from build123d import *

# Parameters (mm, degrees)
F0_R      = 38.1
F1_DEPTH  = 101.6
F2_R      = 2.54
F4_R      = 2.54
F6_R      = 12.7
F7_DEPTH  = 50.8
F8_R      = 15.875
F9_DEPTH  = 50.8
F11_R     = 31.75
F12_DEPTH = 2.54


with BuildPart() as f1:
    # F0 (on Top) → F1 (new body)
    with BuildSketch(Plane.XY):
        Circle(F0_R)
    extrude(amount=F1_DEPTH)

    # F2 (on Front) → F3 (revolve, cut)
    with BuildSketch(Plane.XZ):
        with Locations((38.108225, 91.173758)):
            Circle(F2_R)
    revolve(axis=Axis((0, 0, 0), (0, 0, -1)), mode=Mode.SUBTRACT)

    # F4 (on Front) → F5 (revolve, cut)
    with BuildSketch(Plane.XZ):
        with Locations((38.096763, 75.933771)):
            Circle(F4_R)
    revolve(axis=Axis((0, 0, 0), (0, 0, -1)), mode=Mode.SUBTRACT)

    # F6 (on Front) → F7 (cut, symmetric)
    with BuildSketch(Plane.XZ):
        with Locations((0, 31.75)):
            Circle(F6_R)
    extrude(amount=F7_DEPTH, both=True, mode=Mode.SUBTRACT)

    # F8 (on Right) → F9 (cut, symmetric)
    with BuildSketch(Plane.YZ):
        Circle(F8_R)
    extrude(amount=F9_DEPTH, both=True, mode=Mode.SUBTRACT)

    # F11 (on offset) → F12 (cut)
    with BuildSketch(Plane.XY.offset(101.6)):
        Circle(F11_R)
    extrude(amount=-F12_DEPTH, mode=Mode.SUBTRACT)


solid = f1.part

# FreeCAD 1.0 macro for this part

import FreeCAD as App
import Part
import Sketcher
Q = App.Units.Quantity

doc = App.newDocument("Part")
body = doc.addObject("PartDesign::Body", "Body")

# Sketch on XY plane
sketch1 = body.newObject("Sketcher::SketchObject", "Sketch")
sketch1.AttachmentSupport = (doc.getObject("XY_Plane"), [""])
sketch1.MapMode = "FlatFace"
sketch1.addGeometry(Part.Circle(App.Vector(0, 0, 0), App.Vector(0, 0, 1), 38.1), False)
sketch1.addConstraint(Sketcher.Constraint("Coincident", 0, 3, -1, 1))
sketch1.addConstraint(Sketcher.Constraint("Diameter", 0, Q("3 in")))
pad1 = body.newObject("PartDesign::Pad", "Pad")
pad1.Profile = sketch1
pad1.Length = Q("4 in")

# Sketch on XZ plane
sketch2 = body.newObject("Sketcher::SketchObject", "Sketch001")
sketch2.AttachmentSupport = (doc.getObject("XZ_Plane"), [""])
sketch2.MapMode = "FlatFace"
sketch2.addGeometry(Part.Circle(App.Vector(38.108225, 91.173758, 0), App.Vector(0, 0, 1), 2.54), False)
sketch2.addConstraint(Sketcher.Constraint("Diameter", 0, Q("0.2 in")))
sketch2.addConstraint(Sketcher.Constraint("DistanceY", -1, 1, 0, 3, 91.173758))
sketch2.addConstraint(Sketcher.Constraint("DistanceX", -1, 1, 0, 3, 38.108225))
groove = body.newObject("PartDesign::Groove", "Groove")
groove.Profile = sketch2
groove.ReferenceAxis = (sketch2, ["V_Axis"])
groove.Angle = 360

# Sketch on XZ plane
sketch3 = body.newObject("Sketcher::SketchObject", "Sketch002")
sketch3.AttachmentSupport = (doc.getObject("XZ_Plane"), [""])
sketch3.MapMode = "FlatFace"
sketch3.addGeometry(Part.Circle(App.Vector(38.096763, 75.933771, 0), App.Vector(0, 0, 1), 2.54), False)
sketch3.addConstraint(Sketcher.Constraint("Diameter", 0, Q("0.2 in")))
sketch3.addConstraint(Sketcher.Constraint("DistanceY", -1, 1, 0, 3, 75.933771))
sketch3.addConstraint(Sketcher.Constraint("DistanceX", -1, 1, 0, 3, 38.096763))
groove2 = body.newObject("PartDesign::Groove", "Groove001")
groove2.Profile = sketch3
groove2.ReferenceAxis = (sketch3, ["V_Axis"])
groove2.Angle = 360

# Sketch on XZ plane
sketch4 = body.newObject("Sketcher::SketchObject", "Sketch003")
sketch4.AttachmentSupport = (doc.getObject("XZ_Plane"), [""])
sketch4.MapMode = "FlatFace"
sketch4.addGeometry(Part.Circle(App.Vector(0, 31.75, 0), App.Vector(0, 0, 1), 12.7), False)
sketch4.addConstraint(Sketcher.Constraint("PointOnObject", 0, 3, -2))
sketch4.addConstraint(Sketcher.Constraint("Diameter", 0, Q("1 in")))
sketch4.addConstraint(Sketcher.Constraint("DistanceY", -1, 1, 0, 3, Q("1.25 in")))
pocket1 = body.newObject("PartDesign::Pocket", "Pocket")
pocket1.Profile = sketch4
pocket1.Length = Q("4 in")
pocket1.Midplane = True

# Sketch on YZ plane
sketch5 = body.newObject("Sketcher::SketchObject", "Sketch004")
sketch5.AttachmentSupport = (doc.getObject("YZ_Plane"), [""])
sketch5.MapMode = "FlatFace"
sketch5.addGeometry(Part.Circle(App.Vector(0, 0, 0), App.Vector(0, 0, 1), 15.875), False)
sketch5.addConstraint(Sketcher.Constraint("Coincident", 0, 3, -1, 1))
sketch5.addConstraint(Sketcher.Constraint("Diameter", 0, Q("1.25 in")))
pocket2 = body.newObject("PartDesign::Pocket", "Pocket001")
pocket2.Profile = sketch5
pocket2.Length = Q("4 in")
pocket2.Midplane = True

# Sketch on XY plane
sketch6 = body.newObject("Sketcher::SketchObject", "Sketch005")
sketch6.AttachmentSupport = (doc.getObject("XY_Plane"), [""])
sketch6.MapMode = "FlatFace"
sketch6.AttachmentOffset = App.Placement(App.Vector(0, 0, 4 * 25.4), App.Rotation())
sketch6.addGeometry(Part.Circle(App.Vector(0, 0, 0), App.Vector(0, 0, 1), 31.75), False)
sketch6.addConstraint(Sketcher.Constraint("Coincident", 0, 3, -1, 1))
sketch6.addConstraint(Sketcher.Constraint("Diameter", 0, Q("2.5 in")))
pocket3 = body.newObject("PartDesign::Pocket", "Pocket002")
pocket3.Profile = sketch6
pocket3.Length = Q("0.1 in")

doc.recompute()
